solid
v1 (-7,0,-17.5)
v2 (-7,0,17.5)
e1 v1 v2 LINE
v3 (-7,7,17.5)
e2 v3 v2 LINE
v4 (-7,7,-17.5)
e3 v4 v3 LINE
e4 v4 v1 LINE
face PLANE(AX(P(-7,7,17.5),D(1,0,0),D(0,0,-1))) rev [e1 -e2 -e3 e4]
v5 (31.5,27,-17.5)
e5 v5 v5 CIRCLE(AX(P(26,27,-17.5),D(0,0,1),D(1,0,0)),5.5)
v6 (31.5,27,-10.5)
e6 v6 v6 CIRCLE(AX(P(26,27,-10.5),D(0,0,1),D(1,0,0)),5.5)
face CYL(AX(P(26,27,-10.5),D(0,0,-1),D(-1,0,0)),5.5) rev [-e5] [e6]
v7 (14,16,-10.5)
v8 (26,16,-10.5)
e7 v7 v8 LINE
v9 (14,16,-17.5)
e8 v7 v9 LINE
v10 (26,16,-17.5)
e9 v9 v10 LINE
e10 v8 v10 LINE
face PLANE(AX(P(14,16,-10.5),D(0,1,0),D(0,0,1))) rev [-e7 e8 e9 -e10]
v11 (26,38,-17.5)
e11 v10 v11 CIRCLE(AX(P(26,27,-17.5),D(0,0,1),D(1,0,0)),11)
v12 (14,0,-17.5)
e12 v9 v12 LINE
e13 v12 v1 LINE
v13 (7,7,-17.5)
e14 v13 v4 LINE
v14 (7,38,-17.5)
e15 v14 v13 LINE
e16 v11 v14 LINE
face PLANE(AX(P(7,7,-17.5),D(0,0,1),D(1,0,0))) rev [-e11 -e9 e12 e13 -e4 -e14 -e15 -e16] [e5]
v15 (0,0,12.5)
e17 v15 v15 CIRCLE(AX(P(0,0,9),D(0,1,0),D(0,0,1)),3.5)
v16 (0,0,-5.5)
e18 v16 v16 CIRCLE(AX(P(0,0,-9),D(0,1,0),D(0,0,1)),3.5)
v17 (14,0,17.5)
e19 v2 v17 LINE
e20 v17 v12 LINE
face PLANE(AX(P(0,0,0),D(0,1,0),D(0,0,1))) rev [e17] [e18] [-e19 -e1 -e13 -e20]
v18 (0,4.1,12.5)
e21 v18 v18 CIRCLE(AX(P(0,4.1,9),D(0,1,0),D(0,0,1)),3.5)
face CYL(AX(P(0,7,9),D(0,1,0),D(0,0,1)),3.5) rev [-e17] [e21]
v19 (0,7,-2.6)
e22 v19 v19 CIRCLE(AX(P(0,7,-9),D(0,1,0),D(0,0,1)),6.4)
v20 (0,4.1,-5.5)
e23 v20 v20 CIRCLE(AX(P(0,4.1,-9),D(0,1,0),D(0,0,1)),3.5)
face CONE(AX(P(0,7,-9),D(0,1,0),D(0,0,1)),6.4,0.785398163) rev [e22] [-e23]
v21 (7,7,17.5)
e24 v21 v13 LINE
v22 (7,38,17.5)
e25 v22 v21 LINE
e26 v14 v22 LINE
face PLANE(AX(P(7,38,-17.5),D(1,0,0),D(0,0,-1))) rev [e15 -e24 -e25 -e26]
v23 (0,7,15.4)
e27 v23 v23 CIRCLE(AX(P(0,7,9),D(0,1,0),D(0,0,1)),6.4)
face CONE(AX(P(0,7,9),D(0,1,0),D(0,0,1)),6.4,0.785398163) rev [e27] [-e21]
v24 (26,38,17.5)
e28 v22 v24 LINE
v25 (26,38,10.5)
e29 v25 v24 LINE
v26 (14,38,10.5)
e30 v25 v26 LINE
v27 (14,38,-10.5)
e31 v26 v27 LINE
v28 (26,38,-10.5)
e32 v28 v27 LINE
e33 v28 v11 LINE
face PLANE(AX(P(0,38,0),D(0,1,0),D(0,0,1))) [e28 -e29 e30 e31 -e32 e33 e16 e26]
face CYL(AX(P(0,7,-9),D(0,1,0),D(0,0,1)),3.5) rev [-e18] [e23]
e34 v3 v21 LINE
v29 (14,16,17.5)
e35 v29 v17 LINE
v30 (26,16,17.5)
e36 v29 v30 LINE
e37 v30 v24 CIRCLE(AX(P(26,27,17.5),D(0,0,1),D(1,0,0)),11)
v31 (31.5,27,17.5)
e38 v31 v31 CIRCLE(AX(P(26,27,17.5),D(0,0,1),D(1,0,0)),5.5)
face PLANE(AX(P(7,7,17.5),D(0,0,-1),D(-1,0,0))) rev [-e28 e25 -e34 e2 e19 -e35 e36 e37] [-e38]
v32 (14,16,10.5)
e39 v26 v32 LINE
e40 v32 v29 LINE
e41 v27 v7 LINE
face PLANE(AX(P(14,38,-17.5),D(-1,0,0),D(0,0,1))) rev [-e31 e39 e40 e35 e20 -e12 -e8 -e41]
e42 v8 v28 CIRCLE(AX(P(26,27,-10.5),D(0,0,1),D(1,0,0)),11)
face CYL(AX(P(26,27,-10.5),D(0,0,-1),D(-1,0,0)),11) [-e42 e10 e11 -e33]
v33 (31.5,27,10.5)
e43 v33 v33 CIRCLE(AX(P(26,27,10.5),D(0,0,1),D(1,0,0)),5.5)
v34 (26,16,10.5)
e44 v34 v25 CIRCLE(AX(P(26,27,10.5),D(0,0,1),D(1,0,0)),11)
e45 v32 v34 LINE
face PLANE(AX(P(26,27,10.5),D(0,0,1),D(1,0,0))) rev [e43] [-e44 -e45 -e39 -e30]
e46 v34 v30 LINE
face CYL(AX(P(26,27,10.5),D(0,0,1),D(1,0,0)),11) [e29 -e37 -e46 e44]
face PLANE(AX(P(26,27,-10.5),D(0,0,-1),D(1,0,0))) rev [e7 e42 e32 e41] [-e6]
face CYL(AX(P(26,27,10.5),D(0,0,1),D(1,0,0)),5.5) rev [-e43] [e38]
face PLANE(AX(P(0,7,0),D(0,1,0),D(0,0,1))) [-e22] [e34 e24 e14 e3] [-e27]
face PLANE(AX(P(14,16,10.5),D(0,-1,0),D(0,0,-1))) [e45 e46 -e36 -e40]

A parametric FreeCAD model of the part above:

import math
import FreeCAD as App
import Part
import Sketcher
Q = App.Units.Quantity


def add_polygon(sketch, points):
    """Adds a closed chain of lines whose ends are joined by coincident constraints."""
    first, n = sketch.GeometryCount, len(points)
    for a, b in zip(points, points[1:] + points[:1]):
        sketch.addGeometry(Part.LineSegment(App.Vector(*a, 0), App.Vector(*b, 0)), False)
    for i in range(n):
        sketch.addConstraint(Sketcher.Constraint("Coincident", first + i, 2, first + (i + 1) % n, 1))

doc = App.newDocument("Part")
body = doc.addObject("PartDesign::Body", "Body")

# Sketch on XZ plane
sketch1 = body.newObject("Sketcher::SketchObject", "Sketch")
sketch1.AttachmentSupport = (doc.getObject("XZ_Plane"), [""])
sketch1.MapMode = "FlatFace"
add_polygon(sketch1, [(-7, -18), (-7, 18), (7, 18), (7, -18)])  # lines 0-3
sketch1.addConstraint([
    Sketcher.Constraint("Vertical", 0),
    Sketcher.Constraint("Horizontal", 1),
    Sketcher.Constraint("Vertical", 2),
    Sketcher.Constraint("Horizontal", 3),
    Sketcher.Constraint("Symmetric", 0, 2, 2, 2, -1, 1),
    Sketcher.Constraint("DistanceX", 1, 1, 1, 2, Q("14 mm")),
    Sketcher.Constraint("DistanceY", 0, 1, 0, 2, Q("35 mm")),
])
pad1 = body.newObject("PartDesign::Pad", "Pad")
pad1.Profile = sketch1
pad1.Length = 7
pad1.Reversed = True

# Sketch on XZ plane
sketch2 = body.newObject("Sketcher::SketchObject", "Sketch001")
sketch2.AttachmentSupport = (doc.getObject("XZ_Plane"), [""])
sketch2.MapMode = "FlatFace"
sketch2.AttachmentOffset = App.Placement(App.Vector(0, 0, -7), App.Rotation())
sketch2.addGeometry([
    Part.Circle(App.Vector(0, 9, 0), App.Vector(0, 0, 1), 3.5),
    Part.Circle(App.Vector(0, -9, 0), App.Vector(0, 0, 1), 3.5),
], False)
sketch2.addConstraint([
    Sketcher.Constraint("Equal", 0, 1),
    Sketcher.Constraint("Symmetric", 0, 3, 1, 3, -1, 1),
    Sketcher.Constraint("PointOnObject", 0, 3, -2),
    Sketcher.Constraint("Diameter", 0, Q("7 mm")),
    Sketcher.Constraint("DistanceY", -1, 1, 0, 3, Q("9 mm")),
])
doc.recompute()
hole = body.newObject("PartDesign::Hole", "Hole")
hole.Profile = sketch2
hole.ThreadType = "None"
hole.Diameter = 7
hole.DepthType = "ThroughAll"
hole.HoleCutType = "Countersink"
hole.HoleCutDiameter = 12.8
hole.HoleCutCountersinkAngle = 90
hole.Reversed = True

# Sketch on XZ plane
sketch3 = body.newObject("Sketcher::SketchObject", "Sketch002")
sketch3.AttachmentSupport = (doc.getObject("XZ_Plane"), [""])
sketch3.MapMode = "FlatFace"
add_polygon(sketch3, [(7, -18), (7, 18), (14, 18), (14, -18)])  # lines 0-3
sketch3.addConstraint([
    Sketcher.Constraint("Vertical", 0),
    Sketcher.Constraint("Horizontal", 1),
    Sketcher.Constraint("Vertical", 2),
    Sketcher.Constraint("Horizontal", 3),
    Sketcher.Constraint("DistanceX", 1, 1, 1, 2, Q("7 mm")),
    Sketcher.Constraint("DistanceY", 0, 1, 0, 2, Q("35 mm")),
    Sketcher.Constraint("DistanceX", -1, 1, 0, 2, Q("7 mm")),
    Sketcher.Constraint("DistanceY", -1, 1, 0, 2, Q("17.5 mm")),
])
pad2 = body.newObject("PartDesign::Pad", "Pad001")
pad2.Profile = sketch3
pad2.Length = 38
pad2.Reversed = True

# Sketch on XY plane
sketch4 = body.newObject("Sketcher::SketchObject", "Sketch003")
sketch4.AttachmentSupport = (doc.getObject("XY_Plane"), [""])
sketch4.MapMode = "FlatFace"
sketch4.AttachmentOffset = App.Placement(App.Vector(0, 0, 17.5), App.Rotation())
sketch4.addGeometry([
    Part.LineSegment(App.Vector(26, 38, 0), App.Vector(14, 38, 0)),  # 0
    Part.LineSegment(App.Vector(14, 38, 0), App.Vector(14, 16, 0)),  # 1
    Part.LineSegment(App.Vector(14, 16, 0), App.Vector(26, 16, 0)),  # 2
    Part.ArcOfCircle(Part.Circle(App.Vector(26, 27, 0), App.Vector(0, 0, 1), 11), math.radians(-90), math.radians(90)),  # 3
    Part.Circle(App.Vector(26, 27, 0), App.Vector(0, 0, 1), 6),  # 4
], False)
sketch4.addConstraint([
    Sketcher.Constraint("Coincident", 0, 2, 1, 1),
    Sketcher.Constraint("Coincident", 1, 2, 2, 1),
    Sketcher.Constraint("Tangent", 2, 2, 3, 1),
    Sketcher.Constraint("Tangent", 3, 2, 0, 1),
    Sketcher.Constraint("Horizontal", 0),
    Sketcher.Constraint("Vertical", 1),
    Sketcher.Constraint("Horizontal", 2),
    Sketcher.Constraint("Coincident", 4, 3, 3, 3),
    Sketcher.Constraint("Diameter", 4, Q("11 mm")),
    Sketcher.Constraint("Radius", 3, Q("11 mm")),
    Sketcher.Constraint("DistanceX", 0, 2, 0, 1, Q("12 mm")),
    Sketcher.Constraint("DistanceX", -1, 1, 3, 3, Q("26 mm")),
    Sketcher.Constraint("DistanceY", -1, 1, 3, 3, Q("27 mm")),
])
pad3 = body.newObject("PartDesign::Pad", "Pad002")
pad3.Profile = sketch4
pad3.Length = 7
pad3.Reversed = True
doc.recompute()

mirrored = body.newObject("PartDesign::Mirrored", "Mirrored")
mirrored.Originals = [pad3]
mirrored.MirrorPlane = (doc.getObject("XY_Plane"), [""])
body.Tip = mirrored

doc.recompute()
